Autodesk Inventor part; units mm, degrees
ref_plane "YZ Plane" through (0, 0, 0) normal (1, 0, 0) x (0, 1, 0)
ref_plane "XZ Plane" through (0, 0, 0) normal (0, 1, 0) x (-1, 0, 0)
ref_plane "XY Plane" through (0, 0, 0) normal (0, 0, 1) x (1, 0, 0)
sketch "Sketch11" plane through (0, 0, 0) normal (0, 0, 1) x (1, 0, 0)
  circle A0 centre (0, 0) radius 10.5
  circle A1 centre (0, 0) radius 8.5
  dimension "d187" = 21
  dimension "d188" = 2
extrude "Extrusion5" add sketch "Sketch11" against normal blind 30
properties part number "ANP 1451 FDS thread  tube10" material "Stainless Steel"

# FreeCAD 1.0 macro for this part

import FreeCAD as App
import Part
import Sketcher
from FreeCAD import Vector

doc = App.newDocument("Part")
params = doc.addObject("Spreadsheet::Sheet", "Params")
for row, (alias, value) in enumerate([
    ("sketch1_diameter", "21 mm"),
    ("sketch1_diameter2", "17 mm"),
    ("pad1_length", "30 mm"),
], start=1):
    params.set(f"A{row}", alias)
    params.set(f"B{row}", "=" + value)
    params.setAlias(f"B{row}", alias)

body = doc.addObject("PartDesign::Body", "Body")

sketch1 = body.newObject("Sketcher::SketchObject", "Sketch")
sketch1.AttachmentSupport = (doc.getObject("XY_Plane"), [""])
sketch1.MapMode = "FlatFace"
sketch1.addGeometry([
    Part.Circle(Vector(0, 0, 0), Vector(0, 0, 1), 10),
    Part.Circle(Vector(0, 0, 0), Vector(0, 0, 1), 8),
], False)
sketch1.addConstraint([
    Sketcher.Constraint("Coincident", 0, 3, -1, 1),
    Sketcher.Constraint("Coincident", 1, 3, -1, 1),
    Sketcher.Constraint("Diameter", 0, 21.0),
    Sketcher.Constraint("Diameter", 1, 17.0),
])
sketch1.setExpression("Constraints[2]", "Params.sketch1_diameter")
sketch1.setExpression("Constraints[3]", "Params.sketch1_diameter2")
pad1 = body.newObject("PartDesign::Pad", "Pad")
pad1.Profile = sketch1
pad1.setExpression("Length", "Params.pad1_length")
pad1.Reversed = True

doc.recompute()
